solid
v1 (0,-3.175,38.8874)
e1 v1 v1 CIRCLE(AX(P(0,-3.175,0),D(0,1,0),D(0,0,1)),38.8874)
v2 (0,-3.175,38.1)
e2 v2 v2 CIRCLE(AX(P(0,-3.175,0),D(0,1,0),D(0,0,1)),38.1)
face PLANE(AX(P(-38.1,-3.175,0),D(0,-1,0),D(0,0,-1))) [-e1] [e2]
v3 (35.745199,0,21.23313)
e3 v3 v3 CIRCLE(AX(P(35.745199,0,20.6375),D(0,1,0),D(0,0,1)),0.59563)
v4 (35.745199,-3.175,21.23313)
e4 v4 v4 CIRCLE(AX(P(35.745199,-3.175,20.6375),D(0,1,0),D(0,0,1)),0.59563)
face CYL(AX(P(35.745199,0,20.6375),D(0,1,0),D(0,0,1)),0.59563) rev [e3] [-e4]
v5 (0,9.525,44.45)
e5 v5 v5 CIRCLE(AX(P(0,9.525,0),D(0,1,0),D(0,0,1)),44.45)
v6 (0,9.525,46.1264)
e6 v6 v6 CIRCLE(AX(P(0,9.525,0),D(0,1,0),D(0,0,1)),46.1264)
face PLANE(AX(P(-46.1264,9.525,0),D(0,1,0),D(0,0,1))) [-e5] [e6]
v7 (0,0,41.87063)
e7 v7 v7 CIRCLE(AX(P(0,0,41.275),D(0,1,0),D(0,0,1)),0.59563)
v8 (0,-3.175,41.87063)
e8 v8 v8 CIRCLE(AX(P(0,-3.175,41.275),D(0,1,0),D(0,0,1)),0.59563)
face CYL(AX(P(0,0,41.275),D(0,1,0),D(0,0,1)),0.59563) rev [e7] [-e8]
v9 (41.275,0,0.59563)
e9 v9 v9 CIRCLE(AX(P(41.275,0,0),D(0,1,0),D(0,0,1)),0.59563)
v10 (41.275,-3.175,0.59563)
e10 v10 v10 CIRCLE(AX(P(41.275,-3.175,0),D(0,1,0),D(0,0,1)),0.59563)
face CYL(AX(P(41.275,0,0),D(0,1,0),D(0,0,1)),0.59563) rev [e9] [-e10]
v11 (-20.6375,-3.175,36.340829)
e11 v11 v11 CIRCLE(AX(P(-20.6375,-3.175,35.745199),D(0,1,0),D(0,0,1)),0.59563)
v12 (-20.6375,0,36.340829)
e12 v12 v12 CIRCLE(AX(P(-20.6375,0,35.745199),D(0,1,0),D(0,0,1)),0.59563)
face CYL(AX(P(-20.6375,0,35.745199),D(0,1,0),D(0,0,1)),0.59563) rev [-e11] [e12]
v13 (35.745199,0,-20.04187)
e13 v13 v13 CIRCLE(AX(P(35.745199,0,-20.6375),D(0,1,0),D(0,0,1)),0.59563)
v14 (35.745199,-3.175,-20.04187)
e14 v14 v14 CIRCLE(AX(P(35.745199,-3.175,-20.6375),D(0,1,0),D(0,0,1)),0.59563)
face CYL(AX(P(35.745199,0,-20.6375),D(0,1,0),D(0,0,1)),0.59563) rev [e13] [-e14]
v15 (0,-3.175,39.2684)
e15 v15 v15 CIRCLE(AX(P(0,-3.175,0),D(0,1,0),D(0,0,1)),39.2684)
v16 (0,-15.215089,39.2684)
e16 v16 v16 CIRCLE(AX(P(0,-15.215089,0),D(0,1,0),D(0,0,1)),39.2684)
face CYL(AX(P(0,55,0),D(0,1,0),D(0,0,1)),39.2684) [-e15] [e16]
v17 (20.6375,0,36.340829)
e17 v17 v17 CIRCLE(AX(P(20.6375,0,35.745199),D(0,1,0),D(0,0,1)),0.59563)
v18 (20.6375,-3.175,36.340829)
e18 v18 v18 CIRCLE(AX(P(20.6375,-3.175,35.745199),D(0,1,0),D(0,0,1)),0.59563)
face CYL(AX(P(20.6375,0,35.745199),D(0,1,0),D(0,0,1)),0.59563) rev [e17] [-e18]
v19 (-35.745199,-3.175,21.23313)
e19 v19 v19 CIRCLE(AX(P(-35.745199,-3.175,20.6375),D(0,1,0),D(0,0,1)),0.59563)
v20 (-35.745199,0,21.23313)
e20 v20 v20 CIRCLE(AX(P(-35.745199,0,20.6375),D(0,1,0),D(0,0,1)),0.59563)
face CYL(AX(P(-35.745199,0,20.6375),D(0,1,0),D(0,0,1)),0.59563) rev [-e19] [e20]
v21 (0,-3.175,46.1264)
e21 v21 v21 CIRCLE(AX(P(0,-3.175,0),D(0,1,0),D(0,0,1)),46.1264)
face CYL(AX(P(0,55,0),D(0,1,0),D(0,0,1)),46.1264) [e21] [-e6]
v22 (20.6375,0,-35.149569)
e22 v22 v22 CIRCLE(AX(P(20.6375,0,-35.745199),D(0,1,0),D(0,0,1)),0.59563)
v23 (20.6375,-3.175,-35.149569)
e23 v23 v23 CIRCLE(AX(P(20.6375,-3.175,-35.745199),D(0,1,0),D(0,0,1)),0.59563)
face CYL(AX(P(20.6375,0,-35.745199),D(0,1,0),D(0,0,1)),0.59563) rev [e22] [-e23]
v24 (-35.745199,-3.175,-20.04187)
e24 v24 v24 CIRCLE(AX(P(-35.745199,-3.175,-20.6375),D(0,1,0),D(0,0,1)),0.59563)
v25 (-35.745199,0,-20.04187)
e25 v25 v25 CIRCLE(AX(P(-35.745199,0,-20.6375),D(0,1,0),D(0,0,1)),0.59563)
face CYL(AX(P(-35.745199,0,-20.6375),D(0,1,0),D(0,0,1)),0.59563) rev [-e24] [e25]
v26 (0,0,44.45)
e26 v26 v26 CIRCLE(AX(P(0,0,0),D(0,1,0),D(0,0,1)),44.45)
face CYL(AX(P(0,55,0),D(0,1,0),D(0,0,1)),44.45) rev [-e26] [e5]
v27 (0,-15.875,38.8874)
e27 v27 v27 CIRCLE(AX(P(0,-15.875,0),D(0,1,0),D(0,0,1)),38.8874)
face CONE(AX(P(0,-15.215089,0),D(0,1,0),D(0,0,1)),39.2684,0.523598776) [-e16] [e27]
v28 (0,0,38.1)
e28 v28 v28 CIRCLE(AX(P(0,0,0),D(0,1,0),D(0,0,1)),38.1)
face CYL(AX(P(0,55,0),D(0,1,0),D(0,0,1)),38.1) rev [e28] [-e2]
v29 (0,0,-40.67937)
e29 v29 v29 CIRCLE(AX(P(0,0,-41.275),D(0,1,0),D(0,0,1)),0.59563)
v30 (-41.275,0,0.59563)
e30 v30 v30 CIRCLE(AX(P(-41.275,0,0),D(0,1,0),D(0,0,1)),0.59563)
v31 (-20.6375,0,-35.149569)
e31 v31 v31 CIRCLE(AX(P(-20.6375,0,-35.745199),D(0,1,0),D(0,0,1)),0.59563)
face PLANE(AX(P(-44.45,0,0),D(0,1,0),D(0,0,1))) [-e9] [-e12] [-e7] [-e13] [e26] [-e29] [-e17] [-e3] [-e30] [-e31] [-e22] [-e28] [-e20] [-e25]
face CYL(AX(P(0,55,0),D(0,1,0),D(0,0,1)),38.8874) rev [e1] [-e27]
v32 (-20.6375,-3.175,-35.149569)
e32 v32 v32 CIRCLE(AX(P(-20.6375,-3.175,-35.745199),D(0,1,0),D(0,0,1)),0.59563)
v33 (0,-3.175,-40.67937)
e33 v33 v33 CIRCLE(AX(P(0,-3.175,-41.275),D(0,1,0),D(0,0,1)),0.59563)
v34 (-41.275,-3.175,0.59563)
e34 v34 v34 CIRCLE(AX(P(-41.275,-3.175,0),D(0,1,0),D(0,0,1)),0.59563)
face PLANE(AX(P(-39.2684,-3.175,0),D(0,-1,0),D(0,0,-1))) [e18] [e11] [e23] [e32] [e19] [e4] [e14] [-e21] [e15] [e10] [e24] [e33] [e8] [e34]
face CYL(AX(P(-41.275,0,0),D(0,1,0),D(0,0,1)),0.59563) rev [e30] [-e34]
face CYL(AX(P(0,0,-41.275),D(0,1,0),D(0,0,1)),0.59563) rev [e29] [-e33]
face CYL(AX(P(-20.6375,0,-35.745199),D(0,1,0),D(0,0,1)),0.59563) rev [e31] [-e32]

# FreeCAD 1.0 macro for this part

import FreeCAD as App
import Part
import Sketcher
from FreeCAD import Vector
Q = App.Units.Quantity

doc = App.newDocument("Part")
params = doc.addObject("Spreadsheet::Sheet", "Params")
for row, (alias, value) in enumerate([
    ("sketch1_height", "0.5 in"),
    ("sketch1_width", "0.25 in"),
    ("sketch1_width2", "0.27 in"),
    ("sketch1_length", "0.03 in"),
    ("sketch1_width3", "0.066 in"),
    ("revolution_angle", "360 deg"),
    ("sketch2_width", "0.125 in"),
    ("groove_angle", "360 deg"),
], start=1):
    params.set(f"A{row}", alias)
    params.set(f"B{row}", "=" + value)
    params.setAlias(f"B{row}", alias)

body = doc.addObject("PartDesign::Body", "Body")

# Sketch on XY plane
sketch1 = body.newObject("Sketcher::SketchObject", "Sketch")
sketch1.AttachmentSupport = (doc.getObject("XY_Plane"), [""])
sketch1.MapMode = "FlatFace"
sketch1.addGeometry([
    Part.LineSegment(Vector(-38.1, -3.2, 0), Vector(-38.1, 0, 0)),  # 0
    Part.LineSegment(Vector(-38.1, 0, 0), Vector(-44.5, 0, 0)),  # 1
    Part.LineSegment(Vector(-44.5, 0, 0), Vector(-44.5, 9.5, 0)),  # 2
    Part.LineSegment(Vector(-44.5, 9.5, 0), Vector(-46.1, 9.5, 0)),  # 3
    Part.LineSegment(Vector(-46.1, 9.5, 0), Vector(-46.1, -3.2, 0)),  # 4
    Part.LineSegment(Vector(-46.1, -3.2, 0), Vector(-39.3, -3.2, 0)),  # 5
    Part.LineSegment(Vector(-39.3, -3.2, 0), Vector(-39.3, -15.2, 0)),  # 6
    Part.LineSegment(Vector(-39.3, -15.2, 0), Vector(-38.9, -15.9, 0)),  # 7
    Part.LineSegment(Vector(-38.9, -15.9, 0), Vector(-38.9, -3.2, 0)),  # 8
    Part.LineSegment(Vector(-38.9, -3.2, 0), Vector(-38.1, -3.2, 0)),  # 9
], False)
sketch1.addConstraint([
    Sketcher.Constraint("Coincident", 0, 2, 1, 1),
    Sketcher.Constraint("Coincident", 1, 2, 2, 1),
    Sketcher.Constraint("Coincident", 2, 2, 3, 1),
    Sketcher.Constraint("Coincident", 3, 2, 4, 1),
    Sketcher.Constraint("Coincident", 4, 2, 5, 1),
    Sketcher.Constraint("Coincident", 5, 2, 6, 1),
    Sketcher.Constraint("Coincident", 6, 2, 7, 1),
    Sketcher.Constraint("Coincident", 7, 2, 8, 1),
    Sketcher.Constraint("Coincident", 8, 2, 9, 1),
    Sketcher.Constraint("Coincident", 9, 2, 0, 1),
    Sketcher.Constraint("Vertical", 0),
    Sketcher.Constraint("Horizontal", 1),
    Sketcher.Constraint("Vertical", 2),
    Sketcher.Constraint("Horizontal", 3),
    Sketcher.Constraint("Vertical", 4),
    Sketcher.Constraint("Horizontal", 5),
    Sketcher.Constraint("Vertical", 6),
    Sketcher.Constraint("Vertical", 8),
    Sketcher.Constraint("Horizontal", 9),
    Sketcher.Constraint("PointOnObject", 0, 2, -1),
    Sketcher.Constraint("Horizontal", 5, 2, 8, 2),
    Sketcher.Constraint("Equal", 4, 8),
    Sketcher.Constraint("DistanceY", 4, 2, 4, 1, Q("0.5 in")),
    Sketcher.Constraint("Angle", 7, Q("-60 deg")),
    Sketcher.Constraint("DistanceX", 1, 2, 1, 1, Q("0.25 in")),
    Sketcher.Constraint("DistanceX", 5, 1, 5, 2, Q("0.27 in")),
    Sketcher.Constraint("DistanceX", 0, 2, -1, 1, Q("1.5 in")),
    Sketcher.Constraint("Distance", 7, Q("0.03 in")),
    Sketcher.Constraint("DistanceX", 3, 2, 3, 1, Q("0.066 in")),
    Sketcher.Constraint("DistanceY", 0, 1, 0, 2, Q("0.125 in")),
])
sketch1.setExpression("Constraints[22]", "Params.sketch1_height")
sketch1.setExpression("Constraints[24]", "Params.sketch1_width")
sketch1.setExpression("Constraints[25]", "Params.sketch1_width2")
sketch1.setExpression("Constraints[27]", "Params.sketch1_length")
sketch1.setExpression("Constraints[28]", "Params.sketch1_width3")
revolution = body.newObject("PartDesign::Revolution", "Revolution")
revolution.Profile = sketch1
revolution.ReferenceAxis = (sketch1, ["V_Axis"])
revolution.setExpression("Angle", "Params.revolution_angle")

# Sketch on YZ plane
sketch2 = body.newObject("Sketcher::SketchObject", "Sketch001")
sketch2.AttachmentSupport = (doc.getObject("YZ_Plane"), [""])
sketch2.MapMode = "FlatFace"
sketch2.AttachmentOffset = App.Placement(Vector(0, 0, -1.625 * 25.4), App.Rotation())
sketch2.addGeometry([
    Part.LineSegment(Vector(-3.5, 0, 0), Vector(0, 0, 0)),
    Part.LineSegment(Vector(0, 0, 0), Vector(0, 0.6, 0)),
    Part.LineSegment(Vector(0, 0.6, 0), Vector(-3.2, 0.6, 0)),
    Part.LineSegment(Vector(-3.2, 0.6, 0), Vector(-3.5, 0, 0)),
], False)
sketch2.addConstraint([
    Sketcher.Constraint("Coincident", 0, 2, 1, 1),
    Sketcher.Constraint("Coincident", 1, 2, 2, 1),
    Sketcher.Constraint("Coincident", 2, 2, 3, 1),
    Sketcher.Constraint("Coincident", 3, 2, 0, 1),
    Sketcher.Constraint("Horizontal", 0),
    Sketcher.Constraint("Vertical", 1),
    Sketcher.Constraint("Horizontal", 2),
    Sketcher.Constraint("Coincident", 0, 2, -1, 1),
    Sketcher.Constraint("Angle", 3, Q("-121 deg")),
    Sketcher.Constraint("DistanceX", 2, 2, 2, 1, Q("0.125 in")),
    Sketcher.Constraint("DistanceX", 0, 1, 0, 2, 3.532891),
])
sketch2.setExpression("Constraints[9]", "Params.sketch2_width")
groove = body.newObject("PartDesign::Groove", "Groove")
groove.Profile = sketch2
groove.ReferenceAxis = (sketch2, ["H_Axis"])
groove.setExpression("Angle", "Params.groove_angle")
doc.recompute()

polarpattern = body.newObject("PartDesign::PolarPattern", "PolarPattern")
polarpattern.Originals = [groove]
polarpattern.Axis = (doc.getObject("Y_Axis"), [""])
polarpattern.Angle = 360
polarpattern.Occurrences = 12
body.Tip = polarpattern

doc.recompute()
